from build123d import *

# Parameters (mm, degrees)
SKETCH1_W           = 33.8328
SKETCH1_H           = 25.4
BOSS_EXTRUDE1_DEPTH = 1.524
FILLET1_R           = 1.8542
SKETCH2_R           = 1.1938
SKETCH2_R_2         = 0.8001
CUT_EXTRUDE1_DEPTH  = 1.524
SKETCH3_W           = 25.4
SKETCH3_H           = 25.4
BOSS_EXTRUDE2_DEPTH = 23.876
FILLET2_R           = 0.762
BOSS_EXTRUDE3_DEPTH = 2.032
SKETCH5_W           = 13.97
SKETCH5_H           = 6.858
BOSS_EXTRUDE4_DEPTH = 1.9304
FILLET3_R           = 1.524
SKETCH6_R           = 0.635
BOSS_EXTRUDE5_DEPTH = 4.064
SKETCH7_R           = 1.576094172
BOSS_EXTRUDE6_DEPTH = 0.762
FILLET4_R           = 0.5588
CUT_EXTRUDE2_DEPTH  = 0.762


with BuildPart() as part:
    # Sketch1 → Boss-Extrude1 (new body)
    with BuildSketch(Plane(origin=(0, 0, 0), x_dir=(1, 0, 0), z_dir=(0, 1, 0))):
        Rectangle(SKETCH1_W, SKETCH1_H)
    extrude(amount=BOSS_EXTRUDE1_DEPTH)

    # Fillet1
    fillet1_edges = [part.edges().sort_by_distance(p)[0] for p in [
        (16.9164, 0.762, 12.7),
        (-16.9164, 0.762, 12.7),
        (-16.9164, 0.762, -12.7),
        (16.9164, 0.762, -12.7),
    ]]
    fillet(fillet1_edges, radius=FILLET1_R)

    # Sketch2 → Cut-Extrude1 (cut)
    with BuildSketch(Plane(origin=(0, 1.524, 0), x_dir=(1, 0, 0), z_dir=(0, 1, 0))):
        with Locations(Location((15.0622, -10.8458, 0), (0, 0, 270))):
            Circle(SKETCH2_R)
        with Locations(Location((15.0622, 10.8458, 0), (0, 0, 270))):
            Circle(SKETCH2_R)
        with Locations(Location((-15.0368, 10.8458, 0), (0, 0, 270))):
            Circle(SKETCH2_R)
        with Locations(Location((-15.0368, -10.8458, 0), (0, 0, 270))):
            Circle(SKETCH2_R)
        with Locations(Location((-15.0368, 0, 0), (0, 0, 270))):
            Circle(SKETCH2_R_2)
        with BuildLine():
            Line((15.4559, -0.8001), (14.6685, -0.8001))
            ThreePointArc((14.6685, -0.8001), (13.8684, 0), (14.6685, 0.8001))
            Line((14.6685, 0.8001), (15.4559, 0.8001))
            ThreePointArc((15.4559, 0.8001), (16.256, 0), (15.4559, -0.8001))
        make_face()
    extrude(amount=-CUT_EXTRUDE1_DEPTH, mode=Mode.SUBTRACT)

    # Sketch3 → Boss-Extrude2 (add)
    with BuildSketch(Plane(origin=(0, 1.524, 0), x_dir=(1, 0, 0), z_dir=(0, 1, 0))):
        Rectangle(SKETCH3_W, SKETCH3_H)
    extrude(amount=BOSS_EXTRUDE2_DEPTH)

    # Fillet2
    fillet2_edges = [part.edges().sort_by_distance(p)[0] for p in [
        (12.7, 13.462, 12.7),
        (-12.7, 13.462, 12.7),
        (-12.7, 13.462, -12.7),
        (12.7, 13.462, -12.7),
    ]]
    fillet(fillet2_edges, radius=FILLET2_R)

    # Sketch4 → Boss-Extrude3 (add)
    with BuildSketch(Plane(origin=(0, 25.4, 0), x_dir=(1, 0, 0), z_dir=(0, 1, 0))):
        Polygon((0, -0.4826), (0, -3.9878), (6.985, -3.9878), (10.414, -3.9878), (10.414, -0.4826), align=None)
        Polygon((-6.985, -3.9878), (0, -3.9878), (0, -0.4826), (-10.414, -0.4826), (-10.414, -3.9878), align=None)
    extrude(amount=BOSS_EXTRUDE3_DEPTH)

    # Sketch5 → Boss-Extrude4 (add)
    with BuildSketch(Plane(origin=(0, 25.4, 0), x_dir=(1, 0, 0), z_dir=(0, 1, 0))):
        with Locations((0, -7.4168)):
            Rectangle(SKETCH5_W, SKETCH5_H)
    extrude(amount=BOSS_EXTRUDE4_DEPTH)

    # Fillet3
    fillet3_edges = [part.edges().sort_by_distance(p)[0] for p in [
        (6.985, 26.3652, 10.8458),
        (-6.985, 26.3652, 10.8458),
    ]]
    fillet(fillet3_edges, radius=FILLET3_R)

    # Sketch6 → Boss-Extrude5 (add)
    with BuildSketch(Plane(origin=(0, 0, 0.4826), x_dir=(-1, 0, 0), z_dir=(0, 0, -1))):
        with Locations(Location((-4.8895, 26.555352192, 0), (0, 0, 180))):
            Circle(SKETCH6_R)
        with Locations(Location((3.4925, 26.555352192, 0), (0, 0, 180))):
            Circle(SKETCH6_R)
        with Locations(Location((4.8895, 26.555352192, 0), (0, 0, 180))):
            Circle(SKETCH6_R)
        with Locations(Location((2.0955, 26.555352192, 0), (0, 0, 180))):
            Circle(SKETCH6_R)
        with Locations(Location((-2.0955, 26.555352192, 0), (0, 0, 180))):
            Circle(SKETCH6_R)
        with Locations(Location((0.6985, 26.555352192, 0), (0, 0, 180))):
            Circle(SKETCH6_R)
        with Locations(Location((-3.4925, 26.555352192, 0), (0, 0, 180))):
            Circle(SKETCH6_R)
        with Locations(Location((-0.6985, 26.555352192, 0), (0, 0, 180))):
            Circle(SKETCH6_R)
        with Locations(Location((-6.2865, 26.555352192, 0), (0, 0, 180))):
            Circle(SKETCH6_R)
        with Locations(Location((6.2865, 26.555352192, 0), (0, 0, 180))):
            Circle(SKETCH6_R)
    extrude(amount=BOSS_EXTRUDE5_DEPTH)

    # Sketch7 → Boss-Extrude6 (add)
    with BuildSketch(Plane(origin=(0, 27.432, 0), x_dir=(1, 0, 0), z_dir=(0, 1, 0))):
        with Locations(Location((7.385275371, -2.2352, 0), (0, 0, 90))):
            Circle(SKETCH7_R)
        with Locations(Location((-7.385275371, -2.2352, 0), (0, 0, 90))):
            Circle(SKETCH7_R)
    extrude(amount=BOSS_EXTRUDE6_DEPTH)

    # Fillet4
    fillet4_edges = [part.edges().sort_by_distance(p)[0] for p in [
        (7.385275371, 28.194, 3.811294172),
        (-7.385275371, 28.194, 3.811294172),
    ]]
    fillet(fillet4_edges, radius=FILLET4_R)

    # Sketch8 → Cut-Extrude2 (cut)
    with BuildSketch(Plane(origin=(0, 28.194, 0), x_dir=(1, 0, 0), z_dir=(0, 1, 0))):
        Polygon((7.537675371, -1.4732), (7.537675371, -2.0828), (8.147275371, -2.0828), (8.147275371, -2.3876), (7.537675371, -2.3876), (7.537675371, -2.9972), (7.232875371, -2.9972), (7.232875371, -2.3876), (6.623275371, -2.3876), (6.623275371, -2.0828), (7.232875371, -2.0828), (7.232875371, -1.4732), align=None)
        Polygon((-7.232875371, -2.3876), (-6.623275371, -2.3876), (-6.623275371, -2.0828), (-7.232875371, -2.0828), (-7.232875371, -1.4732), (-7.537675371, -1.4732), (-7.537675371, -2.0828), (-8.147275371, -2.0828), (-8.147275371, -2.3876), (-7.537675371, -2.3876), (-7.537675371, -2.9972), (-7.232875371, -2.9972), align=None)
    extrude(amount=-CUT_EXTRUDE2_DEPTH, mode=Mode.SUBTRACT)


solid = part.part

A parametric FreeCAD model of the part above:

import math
import FreeCAD as App
import Part
import Sketcher

V = App.Vector
Q = App.Units.Quantity


def edges_at(feature, points):
    """Names of the edges that pass closest to the given points."""
    edges = feature.Shape.Edges
    near = lambda p: min(range(len(edges)), key=lambda i: edges[i].distToShape(Part.Vertex(*p))[0])
    return sorted({f"Edge{near(p) + 1}" for p in points})


def add_polygon(sketch, points):
    """Adds a closed chain of lines whose ends are joined by coincident constraints."""
    first, n = sketch.GeometryCount, len(points)
    for a, b in zip(points, points[1:] + points[:1]):
        sketch.addGeometry(Part.LineSegment(App.Vector(*a, 0), App.Vector(*b, 0)), False)
    for i in range(n):
        sketch.addConstraint(Sketcher.Constraint("Coincident", first + i, 2, first + (i + 1) % n, 1))

doc = App.newDocument("Part")
params = doc.addObject("Spreadsheet::Sheet", "Params")
for row, (alias, value) in enumerate([
    ("sketch1_height", "1 in"),
    ("sketch1_width", "1.332 in"),
    ("pad1_length", "0.06 in"),
    ("fillet_radius", "0.073 in"),
    ("sketch2_diameter", "0.094 in"),
    ("sketch2_diameter2", "0.063 in"),
    ("sketch2_width", "0.031 in"),
    ("pocket1_length", "0.06 in"),
    ("sketch3_width", "1 in"),
    ("pad2_length", "0.94 in"),
    ("fillet2_radius", "0.03 in"),
    ("sketch4_width", "0.82 in"),
    ("sketch4_height", "0.138 in"),
    ("pad3_length", "0.08 in"),
    ("sketch5_width", "0.55 in"),
    ("sketch5_height", "0.27 in"),
    ("pad4_length", "0.076 in"),
    ("fillet3_radius", "0.06 in"),
    ("sketch6_diameter", "0.05 in"),
    ("pad5_length", "0.16 in"),
    ("pad6_length", "0.03 in"),
    ("fillet4_radius", "0.022 in"),
    ("sketch8_width", "0.012 in"),
    ("sketch8_width2", "0.024 in"),
    ("pocket2_length", "0.03 in"),
], start=1):
    params.set(f"A{row}", alias)
    params.set(f"B{row}", "=" + value)
    params.setAlias(f"B{row}", alias)

body = doc.addObject("PartDesign::Body", "Body")

# Sketch on XZ plane
sketch1 = doc.addObject("Sketcher::SketchObject", "Sketch")
body.addObject(sketch1)
sketch1.AttachmentSupport = (doc.XZ_Plane, [""])
sketch1.MapMode = "FlatFace"
add_polygon(sketch1, [(-16.9164, -12.7), (-16.9164, 12.7), (16.9164, 12.7), (16.9164, -12.7)])  # lines 0-3
sketch1.addConstraint([
    Sketcher.Constraint("Vertical", 0),
    Sketcher.Constraint("Horizontal", 1),
    Sketcher.Constraint("Vertical", 2),
    Sketcher.Constraint("Horizontal", 3),
    Sketcher.Constraint("Symmetric", 0, 2, 2, 2, -1, 1),
    Sketcher.Constraint("DistanceY", 0, 1, 0, 2, Q("1 in")),
    Sketcher.Constraint("DistanceX", 1, 1, 1, 2, Q("1.332 in")),
])
sketch1.setExpression("Constraints[9]", "Params.sketch1_height")
sketch1.setExpression("Constraints[10]", "Params.sketch1_width")
pad1 = doc.addObject("PartDesign::Pad", "Pad")
body.addObject(pad1)
pad1.Profile = sketch1
pad1.setExpression("Length", "Params.pad1_length")
pad1.Reversed = True
doc.recompute()

fillet = doc.addObject("PartDesign::Fillet", "Fillet")
body.addObject(fillet)
fillet.Base = (pad1, edges_at(pad1, [
    (16.916, 0.762, 12.7),
    (-16.916, 0.762, 12.7),
    (-16.916, 0.762, -12.7),
    (16.916, 0.762, -12.7),
]))
fillet.setExpression("Radius", "Params.fillet_radius")

# Sketch on XZ plane
sketch2 = doc.addObject("Sketcher::SketchObject", "Sketch001")
body.addObject(sketch2)
sketch2.AttachmentSupport = (doc.XZ_Plane, [""])
sketch2.MapMode = "FlatFace"
sketch2.AttachmentOffset = App.Placement(V(0, 0, -0.06 * 25.4), App.Rotation())
sketch2.addGeometry([
    Part.Circle(V(15.0622, 10.8458, 0), V(0, 0, 1), 1.1938),  # 0
    Part.Circle(V(15.0622, -10.8458, 0), V(0, 0, 1), 1.1938),  # 1
    Part.Circle(V(-15.0368, -10.8458, 0), V(0, 0, 1), 1.1938),  # 2
    Part.Circle(V(-15.0368, 10.8458, 0), V(0, 0, 1), 1.1938),  # 3
    Part.Circle(V(-15.0368, 0, 0), V(0, 0, 1), 0.8001),  # 4
    Part.LineSegment(V(14.6685, 0.8001, 0), V(15.4559, 0.8001, 0)),  # 5
    Part.ArcOfCircle(Part.Circle(V(15.4559, 0, 0), V(0, 0, 1), 0.8001), math.radians(-90), math.radians(90)),  # 6
    Part.LineSegment(V(15.4559, -0.8001, 0), V(14.6685, -0.8001, 0)),  # 7
    Part.ArcOfCircle(Part.Circle(V(14.6685, 0, 0), V(0, 0, 1), 0.8001), math.radians(90), math.radians(270)),  # 8
], False)
sketch2.addConstraint([
    Sketcher.Constraint("Tangent", 5, 2, 6, 2),
    Sketcher.Constraint("Tangent", 6, 1, 7, 1),
    Sketcher.Constraint("Tangent", 7, 2, 8, 2),
    Sketcher.Constraint("Tangent", 8, 1, 5, 1),
    Sketcher.Constraint("Horizontal", 5),
    Sketcher.Constraint("Horizontal", 7),
    Sketcher.Constraint("Equal", 0, 1),
    Sketcher.Constraint("Equal", 1, 2),
    Sketcher.Constraint("Equal", 2, 3),
    Sketcher.Constraint("Equal", 4, 6),
    Sketcher.Constraint("Symmetric", 0, 3, 1, 3, -1),
    Sketcher.Constraint("Symmetric", 2, 3, 3, 3, -1),
    Sketcher.Constraint("PointOnObject", 4, 3, -1),
    Sketcher.Constraint("PointOnObject", 6, 3, -1),
    Sketcher.Constraint("Horizontal", 1, 3, 2, 3),
    Sketcher.Constraint("Vertical", 3, 3, 4, 3),
    Sketcher.Constraint("Diameter", 0, Q("0.094 in")),
    Sketcher.Constraint("Diameter", 4, Q("0.063 in")),
    Sketcher.Constraint("DistanceX", 5, 1, 5, 2, Q("0.031 in")),
    Sketcher.Constraint("DistanceX", -1, 1, 0, 3, Q("0.593 in")),
    Sketcher.Constraint("DistanceY", -1, 1, 0, 3, Q("0.427 in")),
    Sketcher.Constraint("DistanceX", 2, 3, -1, 1, Q("0.592 in")),
    Sketcher.Constraint("DistanceX", -1, 1, 6, 3, Q("0.6085 in")),
])
sketch2.setExpression("Constraints[16]", "Params.sketch2_diameter")
sketch2.setExpression("Constraints[17]", "Params.sketch2_diameter2")
sketch2.setExpression("Constraints[18]", "Params.sketch2_width")
pocket1 = doc.addObject("PartDesign::Pocket", "Pocket")
body.addObject(pocket1)
pocket1.Profile = sketch2
pocket1.setExpression("Length", "Params.pocket1_length")
pocket1.Reversed = True

# Sketch on XZ plane
sketch3 = doc.addObject("Sketcher::SketchObject", "Sketch002")
body.addObject(sketch3)
sketch3.AttachmentSupport = (doc.XZ_Plane, [""])
sketch3.MapMode = "FlatFace"
sketch3.AttachmentOffset = App.Placement(V(0, 0, -0.06 * 25.4), App.Rotation())
add_polygon(sketch3, [(-12.7, -12.7), (-12.7, 12.7), (12.7, 12.7), (12.7, -12.7)])  # lines 0-3
sketch3.addConstraint([
    Sketcher.Constraint("Vertical", 0),
    Sketcher.Constraint("Horizontal", 1),
    Sketcher.Constraint("Vertical", 2),
    Sketcher.Constraint("Horizontal", 3),
    Sketcher.Constraint("Symmetric", 0, 2, 2, 2, -1, 1),
    Sketcher.Constraint("Equal", 3, 0),
    Sketcher.Constraint("DistanceX", 1, 1, 1, 2, Q("1 in")),
])
sketch3.setExpression("Constraints[10]", "Params.sketch3_width")
pad2 = doc.addObject("PartDesign::Pad", "Pad001")
body.addObject(pad2)
pad2.Profile = sketch3
pad2.setExpression("Length", "Params.pad2_length")
pad2.Reversed = True
doc.recompute()

fillet2 = doc.addObject("PartDesign::Fillet", "Fillet001")
body.addObject(fillet2)
fillet2.Base = (pad2, edges_at(pad2, [
    (12.7, 13.462, 12.7),
    (-12.7, 13.462, 12.7),
    (-12.7, 13.462, -12.7),
    (12.7, 13.462, -12.7),
]))
fillet2.setExpression("Radius", "Params.fillet2_radius")

# Sketch on XZ plane
sketch4 = doc.addObject("Sketcher::SketchObject", "Sketch003")
body.addObject(sketch4)
sketch4.AttachmentSupport = (doc.XZ_Plane, [""])
sketch4.MapMode = "FlatFace"
sketch4.AttachmentOffset = App.Placement(V(0, 0, -1 * 25.4), App.Rotation())
add_polygon(sketch4, [(10.414, 3.9878), (10.414, 0.4826), (-10.414, 0.4826), (-10.414, 3.9878)])  # lines 0-3
sketch4.addConstraint([
    Sketcher.Constraint("Vertical", 0),
    Sketcher.Constraint("Horizontal", 1),
    Sketcher.Constraint("Vertical", 2),
    Sketcher.Constraint("Horizontal", 3),
    Sketcher.Constraint("DistanceX", 1, 2, 1, 1, Q("0.82 in")),
    Sketcher.Constraint("DistanceY", 0, 2, 0, 1, Q("0.138 in")),
    Sketcher.Constraint("DistanceX", -1, 1, 0, 2, Q("0.41 in")),
    Sketcher.Constraint("DistanceY", -1, 1, 0, 2, Q("0.019 in")),
])
sketch4.setExpression("Constraints[8]", "Params.sketch4_width")
sketch4.setExpression("Constraints[9]", "Params.sketch4_height")
pad3 = doc.addObject("PartDesign::Pad", "Pad002")
body.addObject(pad3)
pad3.Profile = sketch4
pad3.setExpression("Length", "Params.pad3_length")
pad3.Reversed = True

# Sketch on XZ plane
sketch5 = doc.addObject("Sketcher::SketchObject", "Sketch004")
body.addObject(sketch5)
sketch5.AttachmentSupport = (doc.XZ_Plane, [""])
sketch5.MapMode = "FlatFace"
sketch5.AttachmentOffset = App.Placement(V(0, 0, -1 * 25.4), App.Rotation())
add_polygon(sketch5, [(-6.985, 3.9878), (-6.985, 10.8458), (6.985, 10.8458), (6.985, 3.9878)])  # lines 0-3
sketch5.addConstraint([
    Sketcher.Constraint("Vertical", 0),
    Sketcher.Constraint("Horizontal", 1),
    Sketcher.Constraint("Vertical", 2),
    Sketcher.Constraint("Horizontal", 3),
    Sketcher.Constraint("DistanceX", 1, 1, 1, 2, Q("0.55 in")),
    Sketcher.Constraint("DistanceY", 0, 1, 0, 2, Q("0.27 in")),
    Sketcher.Constraint("DistanceX", 0, 2, -1, 1, Q("0.275 in")),
    Sketcher.Constraint("DistanceY", -1, 1, 0, 2, Q("0.427 in")),
])
sketch5.setExpression("Constraints[8]", "Params.sketch5_width")
sketch5.setExpression("Constraints[9]", "Params.sketch5_height")
pad4 = doc.addObject("PartDesign::Pad", "Pad003")
body.addObject(pad4)
pad4.Profile = sketch5
pad4.setExpression("Length", "Params.pad4_length")
pad4.Reversed = True
doc.recompute()

fillet3 = doc.addObject("PartDesign::Fillet", "Fillet002")
body.addObject(fillet3)
fillet3.Base = (pad4, edges_at(pad4, [(6.985, 26.365, 10.846), (-6.985, 26.365, 10.846)]))
fillet3.setExpression("Radius", "Params.fillet3_radius")

# Sketch on XY plane
sketch6 = doc.addObject("Sketcher::SketchObject", "Sketch005")
body.addObject(sketch6)
sketch6.AttachmentSupport = (doc.XY_Plane, [""])
sketch6.MapMode = "FlatFace"
sketch6.AttachmentOffset = App.Placement(V(0, 0, 0.019 * 25.4), App.Rotation())
sketch6.addGeometry([
    Part.Circle(V(4.8895, 26.555352, 0), V(0, 0, 1), 0.635),  # 0
    Part.Circle(V(-3.4925, 26.555352, 0), V(0, 0, 1), 0.635),  # 1
    Part.Circle(V(-4.8895, 26.555352, 0), V(0, 0, 1), 0.635),  # 2
    Part.Circle(V(-2.0955, 26.555352, 0), V(0, 0, 1), 0.635),  # 3
    Part.Circle(V(2.0955, 26.555352, 0), V(0, 0, 1), 0.635),  # 4
    Part.Circle(V(-0.6985, 26.555352, 0), V(0, 0, 1), 0.635),  # 5
    Part.Circle(V(3.4925, 26.555352, 0), V(0, 0, 1), 0.635),  # 6
    Part.Circle(V(0.6985, 26.555352, 0), V(0, 0, 1), 0.635),  # 7
    Part.Circle(V(6.2865, 26.555352, 0), V(0, 0, 1), 0.635),  # 8
    Part.Circle(V(-6.2865, 26.555352, 0), V(0, 0, 1), 0.635),  # 9
], False)
sketch6.addConstraint([
    Sketcher.Constraint("Equal", 0, 1),
    Sketcher.Constraint("Equal", 1, 2),
    Sketcher.Constraint("Equal", 2, 3),
    Sketcher.Constraint("Equal", 3, 4),
    Sketcher.Constraint("Equal", 4, 5),
    Sketcher.Constraint("Equal", 5, 6),
    Sketcher.Constraint("Equal", 6, 7),
    Sketcher.Constraint("Equal", 7, 8),
    Sketcher.Constraint("Equal", 8, 9),
    Sketcher.Constraint("Symmetric", 0, 3, 2, 3, -2),
    Sketcher.Constraint("Symmetric", 3, 3, 4, 3, -2),
    Sketcher.Constraint("Symmetric", 1, 3, 6, 3, -2),
    Sketcher.Constraint("Symmetric", 5, 3, 7, 3, -2),
    Sketcher.Constraint("Symmetric", 8, 3, 9, 3, -2),
    Sketcher.Constraint("Horizontal", 0, 3, 1, 3),
    Sketcher.Constraint("Horizontal", 2, 3, 3, 3),
    Sketcher.Constraint("Horizontal", 4, 3, 5, 3),
    Sketcher.Constraint("Horizontal", 7, 3, 8, 3),
    Sketcher.Constraint("Diameter", 0, Q("0.05 in")),
    Sketcher.Constraint("DistanceX", 1, 3, 0, 3, Q("0.33 in")),
    Sketcher.Constraint("DistanceX", 2, 3, 3, 3, Q("0.11 in")),
    Sketcher.Constraint("DistanceX", 1, 3, 5, 3, Q("0.11 in")),
    Sketcher.Constraint("DistanceX", 6, 3, 8, 3, Q("0.11 in")),
    Sketcher.Constraint("DistanceX", 2, 3, 1, 3, Q("0.055 in")),
    Sketcher.Constraint("DistanceY", -1, 1, 0, 3, Q("26.555352 mm")),
])
sketch6.setExpression("Constraints[18]", "Params.sketch6_diameter")
pad5 = doc.addObject("PartDesign::Pad", "Pad004")
body.addObject(pad5)
pad5.Profile = sketch6
pad5.setExpression("Length", "Params.pad5_length")
pad5.Reversed = True

# Sketch on XZ plane
sketch7 = doc.addObject("Sketcher::SketchObject", "Sketch006")
body.addObject(sketch7)
sketch7.AttachmentSupport = (doc.XZ_Plane, [""])
sketch7.MapMode = "FlatFace"
sketch7.AttachmentOffset = App.Placement(V(0, 0, -1.08 * 25.4), App.Rotation())
sketch7.addGeometry([
    Part.Circle(V(7.385275, 2.2352, 0), V(0, 0, 1), 1.576094),
    Part.Circle(V(-7.385275, 2.2352, 0), V(0, 0, 1), 1.576094),
], False)
sketch7.addConstraint([
    Sketcher.Constraint("Equal", 0, 1),
    Sketcher.Constraint("Symmetric", 0, 3, 1, 3, -2),
    Sketcher.Constraint("Diameter", 0, Q("3.152188 mm")),
    Sketcher.Constraint("DistanceY", -1, 1, 0, 3, Q("0.088 in")),
    Sketcher.Constraint("DistanceX", 1, 3, 0, 3, Q("14.770551 mm")),
])
pad6 = doc.addObject("PartDesign::Pad", "Pad005")
body.addObject(pad6)
pad6.Profile = sketch7
pad6.setExpression("Length", "Params.pad6_length")
pad6.Reversed = True
doc.recompute()

fillet4 = doc.addObject("PartDesign::Fillet", "Fillet003")
body.addObject(fillet4)
fillet4.Base = (pad6, edges_at(pad6, [(7.385, 28.194, 3.811), (-7.385, 28.194, 3.811)]))
fillet4.setExpression("Radius", "Params.fillet4_radius")

# Sketch on XZ plane
sketch8 = doc.addObject("Sketcher::SketchObject", "Sketch007")
body.addObject(sketch8)
sketch8.AttachmentSupport = (doc.XZ_Plane, [""])
sketch8.MapMode = "FlatFace"
sketch8.AttachmentOffset = App.Placement(V(0, 0, -1.11 * 25.4), App.Rotation())
add_polygon(sketch8, [(7.537675, 2.0828), (7.537675, 1.4732), (7.232875, 1.4732), (7.232875, 2.0828), (6.623275, 2.0828), (6.623275, 2.3876), (7.232875, 2.3876), (7.232875, 2.9972), (7.537675, 2.9972), (7.537675, 2.3876), (8.147275, 2.3876), (8.147275, 2.0828)])  # lines 0-11
add_polygon(sketch8, [(-7.232875, 2.3876), (-6.623275, 2.3876), (-6.623275, 2.0828), (-7.232875, 2.0828), (-7.232875, 1.4732), (-7.537675, 1.4732), (-7.537675, 2.0828), (-8.147275, 2.0828), (-8.147275, 2.3876), (-7.537675, 2.3876), (-7.537675, 2.9972), (-7.232875, 2.9972)])  # lines 12-23
sketch8.addConstraint([
    Sketcher.Constraint("Vertical", 0),
    Sketcher.Constraint("Horizontal", 1),
    Sketcher.Constraint("Vertical", 2),
    Sketcher.Constraint("Horizontal", 3),
    Sketcher.Constraint("Vertical", 4),
    Sketcher.Constraint("Horizontal", 5),
    Sketcher.Constraint("Vertical", 6),
    Sketcher.Constraint("Horizontal", 7),
    Sketcher.Constraint("Vertical", 8),
    Sketcher.Constraint("Horizontal", 9),
    Sketcher.Constraint("Vertical", 10),
    Sketcher.Constraint("Horizontal", 11),
    Sketcher.Constraint("Horizontal", 12),
    Sketcher.Constraint("Vertical", 13),
    Sketcher.Constraint("Horizontal", 14),
    Sketcher.Constraint("Vertical", 15),
    Sketcher.Constraint("Horizontal", 16),
    Sketcher.Constraint("Vertical", 17),
    Sketcher.Constraint("Horizontal", 18),
    Sketcher.Constraint("Vertical", 19),
    Sketcher.Constraint("Horizontal", 20),
    Sketcher.Constraint("Vertical", 21),
    Sketcher.Constraint("Horizontal", 22),
    Sketcher.Constraint("Vertical", 23),
    Sketcher.Constraint("Symmetric", 4, 2, 12, 2, -2),
    Sketcher.Constraint("Symmetric", 2, 2, 14, 2, -2),
    Sketcher.Constraint("Symmetric", 0, 2, 16, 2, -2),
    Sketcher.Constraint("Symmetric", 10, 2, 18, 2, -2),
    Sketcher.Constraint("Symmetric", 8, 2, 20, 2, -2),
    Sketcher.Constraint("Symmetric", 6, 2, 22, 2, -2),
    Sketcher.Constraint("Horizontal", 5, 2, 8, 2),
    Sketcher.Constraint("Horizontal", 3, 2, 10, 2),
    Sketcher.Constraint("Vertical", 2, 2, 5, 2),
    Sketcher.Constraint("Vertical", 0, 2, 7, 2),
    Sketcher.Constraint("Equal", 5, 9),
    Sketcher.Constraint("Equal", 20, 0),
    Sketcher.Constraint("Equal", 22, 4),
    Sketcher.Constraint("Equal", 2, 6),
    Sketcher.Constraint("DistanceX", 1, 2, 1, 1, Q("0.012 in")),
    Sketcher.Constraint("DistanceX", 3, 2, 3, 1, Q("0.024 in")),
    Sketcher.Constraint("DistanceY", -1, 1, 0, 2, Q("0.058 in")),
    Sketcher.Constraint("DistanceX", 12, 2, 4, 2, Q("13.246551 mm")),
])
sketch8.setExpression("Constraints[62]", "Params.sketch8_width")
sketch8.setExpression("Constraints[63]", "Params.sketch8_width2")
pocket2 = doc.addObject("PartDesign::Pocket", "Pocket001")
body.addObject(pocket2)
pocket2.Profile = sketch8
pocket2.setExpression("Length", "Params.pocket2_length")
pocket2.Reversed = True

doc.recompute()
